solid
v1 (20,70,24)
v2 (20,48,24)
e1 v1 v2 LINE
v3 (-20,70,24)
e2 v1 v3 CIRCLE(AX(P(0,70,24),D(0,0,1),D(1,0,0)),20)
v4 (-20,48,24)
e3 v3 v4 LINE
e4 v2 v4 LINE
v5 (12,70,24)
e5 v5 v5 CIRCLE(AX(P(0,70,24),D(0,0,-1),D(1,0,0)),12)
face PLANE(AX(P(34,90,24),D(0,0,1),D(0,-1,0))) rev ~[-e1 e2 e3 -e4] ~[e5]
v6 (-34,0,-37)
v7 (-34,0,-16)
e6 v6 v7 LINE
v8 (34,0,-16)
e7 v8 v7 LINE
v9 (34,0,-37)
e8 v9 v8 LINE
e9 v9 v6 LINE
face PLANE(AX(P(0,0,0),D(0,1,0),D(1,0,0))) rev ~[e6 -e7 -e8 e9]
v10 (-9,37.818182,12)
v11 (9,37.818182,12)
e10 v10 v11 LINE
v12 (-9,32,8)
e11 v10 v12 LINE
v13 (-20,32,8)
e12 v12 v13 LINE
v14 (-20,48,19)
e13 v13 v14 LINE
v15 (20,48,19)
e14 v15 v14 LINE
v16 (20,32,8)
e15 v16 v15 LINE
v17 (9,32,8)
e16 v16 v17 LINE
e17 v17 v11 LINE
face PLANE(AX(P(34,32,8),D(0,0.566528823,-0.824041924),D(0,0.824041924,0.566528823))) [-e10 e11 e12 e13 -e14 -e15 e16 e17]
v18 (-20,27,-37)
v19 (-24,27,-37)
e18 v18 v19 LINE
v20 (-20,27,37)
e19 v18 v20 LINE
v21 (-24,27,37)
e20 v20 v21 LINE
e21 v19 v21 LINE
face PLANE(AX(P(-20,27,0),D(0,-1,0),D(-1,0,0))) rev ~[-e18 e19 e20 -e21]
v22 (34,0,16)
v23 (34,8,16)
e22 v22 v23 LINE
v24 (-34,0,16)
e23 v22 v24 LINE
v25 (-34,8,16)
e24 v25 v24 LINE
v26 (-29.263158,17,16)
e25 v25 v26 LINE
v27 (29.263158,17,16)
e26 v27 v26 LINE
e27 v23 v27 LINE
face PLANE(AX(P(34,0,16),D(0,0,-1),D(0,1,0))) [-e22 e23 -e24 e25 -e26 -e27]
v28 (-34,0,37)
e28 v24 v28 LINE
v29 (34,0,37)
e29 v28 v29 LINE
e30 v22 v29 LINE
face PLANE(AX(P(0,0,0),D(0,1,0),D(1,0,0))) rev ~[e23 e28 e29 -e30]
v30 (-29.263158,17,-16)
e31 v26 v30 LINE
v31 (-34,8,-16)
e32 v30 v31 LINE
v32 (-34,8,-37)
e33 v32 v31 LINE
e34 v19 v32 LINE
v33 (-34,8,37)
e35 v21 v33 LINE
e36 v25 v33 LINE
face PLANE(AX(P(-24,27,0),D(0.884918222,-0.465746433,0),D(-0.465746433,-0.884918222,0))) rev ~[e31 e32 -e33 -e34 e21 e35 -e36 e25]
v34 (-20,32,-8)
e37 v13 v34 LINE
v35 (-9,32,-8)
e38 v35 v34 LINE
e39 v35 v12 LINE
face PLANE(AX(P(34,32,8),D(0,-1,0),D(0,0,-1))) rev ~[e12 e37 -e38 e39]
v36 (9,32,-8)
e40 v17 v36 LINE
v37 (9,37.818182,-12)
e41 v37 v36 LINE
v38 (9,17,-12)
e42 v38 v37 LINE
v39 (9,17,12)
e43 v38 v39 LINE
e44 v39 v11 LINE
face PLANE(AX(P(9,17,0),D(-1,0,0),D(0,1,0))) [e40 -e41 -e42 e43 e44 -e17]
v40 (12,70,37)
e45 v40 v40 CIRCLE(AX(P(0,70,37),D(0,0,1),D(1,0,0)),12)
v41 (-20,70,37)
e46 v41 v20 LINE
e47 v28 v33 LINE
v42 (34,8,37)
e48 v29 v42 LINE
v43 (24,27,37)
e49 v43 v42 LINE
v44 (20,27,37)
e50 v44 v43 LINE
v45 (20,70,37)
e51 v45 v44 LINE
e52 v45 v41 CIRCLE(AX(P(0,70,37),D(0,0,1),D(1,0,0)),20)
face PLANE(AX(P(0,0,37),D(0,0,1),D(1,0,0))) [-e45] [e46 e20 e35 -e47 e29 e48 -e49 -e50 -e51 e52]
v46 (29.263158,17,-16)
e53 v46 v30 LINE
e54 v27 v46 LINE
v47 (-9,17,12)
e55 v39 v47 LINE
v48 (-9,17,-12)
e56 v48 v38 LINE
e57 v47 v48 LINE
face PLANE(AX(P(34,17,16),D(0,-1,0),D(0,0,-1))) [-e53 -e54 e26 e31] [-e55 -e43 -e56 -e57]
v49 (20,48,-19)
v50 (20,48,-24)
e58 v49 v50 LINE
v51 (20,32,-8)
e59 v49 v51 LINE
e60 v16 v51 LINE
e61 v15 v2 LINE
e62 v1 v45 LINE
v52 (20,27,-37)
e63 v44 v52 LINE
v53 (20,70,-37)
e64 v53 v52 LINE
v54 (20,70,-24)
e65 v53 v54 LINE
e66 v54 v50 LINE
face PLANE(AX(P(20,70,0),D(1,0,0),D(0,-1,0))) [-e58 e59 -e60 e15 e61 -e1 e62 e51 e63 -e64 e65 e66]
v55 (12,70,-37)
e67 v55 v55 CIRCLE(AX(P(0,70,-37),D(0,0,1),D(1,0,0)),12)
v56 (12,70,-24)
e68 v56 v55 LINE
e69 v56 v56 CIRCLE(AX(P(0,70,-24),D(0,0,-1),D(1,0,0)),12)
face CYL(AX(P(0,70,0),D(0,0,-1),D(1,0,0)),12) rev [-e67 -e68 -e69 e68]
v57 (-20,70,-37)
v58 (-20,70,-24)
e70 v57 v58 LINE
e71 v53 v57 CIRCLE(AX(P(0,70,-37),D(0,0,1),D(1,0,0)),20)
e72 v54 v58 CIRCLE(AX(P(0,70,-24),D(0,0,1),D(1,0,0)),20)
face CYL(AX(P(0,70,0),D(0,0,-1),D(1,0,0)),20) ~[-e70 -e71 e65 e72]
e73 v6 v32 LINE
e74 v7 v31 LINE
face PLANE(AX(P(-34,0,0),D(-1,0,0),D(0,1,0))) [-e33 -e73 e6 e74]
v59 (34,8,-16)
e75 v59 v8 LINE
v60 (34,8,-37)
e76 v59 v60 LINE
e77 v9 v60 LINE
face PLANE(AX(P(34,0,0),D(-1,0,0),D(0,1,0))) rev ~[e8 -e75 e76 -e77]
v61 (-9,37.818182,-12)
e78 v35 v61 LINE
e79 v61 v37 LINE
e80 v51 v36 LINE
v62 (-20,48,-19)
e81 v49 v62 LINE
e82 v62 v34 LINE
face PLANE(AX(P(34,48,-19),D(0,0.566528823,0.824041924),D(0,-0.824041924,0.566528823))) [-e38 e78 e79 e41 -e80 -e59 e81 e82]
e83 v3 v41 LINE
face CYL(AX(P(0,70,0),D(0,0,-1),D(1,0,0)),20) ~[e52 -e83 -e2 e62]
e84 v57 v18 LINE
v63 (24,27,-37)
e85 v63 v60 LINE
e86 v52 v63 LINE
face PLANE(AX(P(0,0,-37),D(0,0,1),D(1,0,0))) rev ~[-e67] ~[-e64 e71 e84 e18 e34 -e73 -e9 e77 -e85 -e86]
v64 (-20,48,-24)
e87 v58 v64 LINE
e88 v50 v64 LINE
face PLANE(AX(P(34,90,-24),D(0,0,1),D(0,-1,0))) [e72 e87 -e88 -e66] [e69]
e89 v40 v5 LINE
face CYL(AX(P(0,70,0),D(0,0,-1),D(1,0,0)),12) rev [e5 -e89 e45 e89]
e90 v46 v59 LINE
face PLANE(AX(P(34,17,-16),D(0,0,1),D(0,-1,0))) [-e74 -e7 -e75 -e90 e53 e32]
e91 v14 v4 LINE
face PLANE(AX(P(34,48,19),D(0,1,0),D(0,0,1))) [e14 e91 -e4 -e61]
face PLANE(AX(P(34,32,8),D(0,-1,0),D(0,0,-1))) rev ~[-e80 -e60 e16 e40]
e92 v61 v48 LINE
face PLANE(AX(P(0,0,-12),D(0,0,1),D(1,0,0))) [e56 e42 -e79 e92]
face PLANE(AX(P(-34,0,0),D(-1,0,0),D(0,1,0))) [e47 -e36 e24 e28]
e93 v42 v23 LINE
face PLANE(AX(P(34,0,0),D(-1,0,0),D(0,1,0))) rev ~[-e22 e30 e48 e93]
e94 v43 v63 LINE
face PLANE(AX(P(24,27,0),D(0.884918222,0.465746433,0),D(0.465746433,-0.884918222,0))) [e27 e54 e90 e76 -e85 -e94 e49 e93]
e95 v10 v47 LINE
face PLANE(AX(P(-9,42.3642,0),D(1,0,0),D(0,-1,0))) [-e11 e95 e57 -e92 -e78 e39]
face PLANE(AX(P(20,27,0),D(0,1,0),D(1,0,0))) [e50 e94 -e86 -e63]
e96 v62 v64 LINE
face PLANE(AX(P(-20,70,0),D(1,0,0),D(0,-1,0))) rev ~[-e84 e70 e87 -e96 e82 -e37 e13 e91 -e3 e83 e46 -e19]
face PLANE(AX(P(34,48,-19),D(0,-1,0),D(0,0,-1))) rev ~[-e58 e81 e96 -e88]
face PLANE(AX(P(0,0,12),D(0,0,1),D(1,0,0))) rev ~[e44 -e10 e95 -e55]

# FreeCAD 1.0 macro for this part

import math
import FreeCAD as App
import Part
import Sketcher
from FreeCAD import Vector
Q = App.Units.Quantity


def add_polygon(sketch, points):
    """Adds a closed chain of lines whose ends are joined by coincident constraints."""
    first, n = sketch.GeometryCount, len(points)
    for a, b in zip(points, points[1:] + points[:1]):
        sketch.addGeometry(Part.LineSegment(App.Vector(*a, 0), App.Vector(*b, 0)), False)
    for i in range(n):
        sketch.addConstraint(Sketcher.Constraint("Coincident", first + i, 2, first + (i + 1) % n, 1))

doc = App.newDocument("Part")
body = doc.addObject("PartDesign::Body", "Body")

# Sketch on XY plane
sketch1 = doc.addObject("Sketcher::SketchObject", "Sketch")
body.addObject(sketch1)
sketch1.AttachmentSupport = (doc.XY_Plane, [""])
sketch1.MapMode = "FlatFace"
sketch1.addGeometry([
    Part.LineSegment(Vector(20, 27, 0), Vector(20, 70, 0)),  # 0
    Part.ArcOfCircle(Part.Circle(Vector(0, 70, 0), Vector(0, 0, 1), 20), math.radians(0), math.radians(180)),  # 1
    Part.LineSegment(Vector(-20, 70, 0), Vector(-20, 27, 0)),  # 2
    Part.LineSegment(Vector(-20, 27, 0), Vector(-24, 27, 0)),  # 3
    Part.LineSegment(Vector(-24, 27, 0), Vector(-34, 8, 0)),  # 4
    Part.LineSegment(Vector(-34, 8, 0), Vector(-34, 0, 0)),  # 5
    Part.LineSegment(Vector(-34, 0, 0), Vector(34, 0, 0)),  # 6
    Part.LineSegment(Vector(34, 0, 0), Vector(34, 8, 0)),  # 7
    Part.LineSegment(Vector(34, 8, 0), Vector(24, 27, 0)),  # 8
    Part.LineSegment(Vector(24, 27, 0), Vector(20, 27, 0)),  # 9
    Part.Circle(Vector(0, 70, 0), Vector(0, 0, 1), 12),  # 10
], False)
sketch1.addConstraint([
    Sketcher.Constraint("Tangent", 0, 2, 1, 1),
    Sketcher.Constraint("Tangent", 1, 2, 2, 1),
    Sketcher.Constraint("Coincident", 2, 2, 3, 1),
    Sketcher.Constraint("Coincident", 3, 2, 4, 1),
    Sketcher.Constraint("Coincident", 4, 2, 5, 1),
    Sketcher.Constraint("Coincident", 5, 2, 6, 1),
    Sketcher.Constraint("Coincident", 6, 2, 7, 1),
    Sketcher.Constraint("Coincident", 7, 2, 8, 1),
    Sketcher.Constraint("Coincident", 8, 2, 9, 1),
    Sketcher.Constraint("Coincident", 9, 2, 0, 1),
    Sketcher.Constraint("Vertical", 0),
    Sketcher.Constraint("Vertical", 2),
    Sketcher.Constraint("Horizontal", 3),
    Sketcher.Constraint("Vertical", 5),
    Sketcher.Constraint("Horizontal", 6),
    Sketcher.Constraint("Vertical", 7),
    Sketcher.Constraint("Horizontal", 9),
    Sketcher.Constraint("Coincident", 10, 3, 1, 3),
    Sketcher.Constraint("Symmetric", 5, 2, 6, 2, -1, 1),
    Sketcher.Constraint("Symmetric", 3, 2, 8, 2, -2),
    Sketcher.Constraint("PointOnObject", 1, 3, -2),
    Sketcher.Constraint("Horizontal", 4, 2, 7, 2),
    Sketcher.Constraint("Diameter", 10, Q("24 mm")),
    Sketcher.Constraint("Radius", 1, Q("20 mm")),
    Sketcher.Constraint("DistanceX", 3, 2, 3, 1, Q("4 mm")),
    Sketcher.Constraint("DistanceY", 5, 2, 5, 1, Q("8 mm")),
    Sketcher.Constraint("DistanceY", -1, 1, 1, 3, Q("70 mm")),
    Sketcher.Constraint("DistanceX", 4, 2, -1, 1, Q("34 mm")),
    Sketcher.Constraint("DistanceY", 4, 2, 3, 2, Q("19 mm")),
])
pad1 = doc.addObject("PartDesign::Pad", "Pad")
body.addObject(pad1)
pad1.Profile = sketch1
pad1.Length = 74
pad1.Midplane = True

# Sketch on YZ plane
sketch2 = doc.addObject("Sketcher::SketchObject", "Sketch001")
body.addObject(sketch2)
sketch2.AttachmentSupport = (doc.YZ_Plane, [""])
sketch2.MapMode = "FlatFace"
sketch2.AttachmentOffset = App.Placement(Vector(0, 0, 34), App.Rotation())
add_polygon(sketch2, [(0, 16), (0, -16), (17, -16), (17, 16)])  # lines 0-3
add_polygon(sketch2, [(48, 19), (32, 8), (32, -8), (48, -19), (48, -24), (90, -24), (90, 24), (48, 24)])  # lines 4-11
sketch2.addConstraint([
    Sketcher.Constraint("Vertical", 0),
    Sketcher.Constraint("Horizontal", 1),
    Sketcher.Constraint("Vertical", 2),
    Sketcher.Constraint("Horizontal", 3),
    Sketcher.Constraint("Vertical", 5),
    Sketcher.Constraint("Vertical", 7),
    Sketcher.Constraint("Horizontal", 8),
    Sketcher.Constraint("Vertical", 9),
    Sketcher.Constraint("Horizontal", 10),
    Sketcher.Constraint("Vertical", 11),
    Sketcher.Constraint("Symmetric", 0, 2, 3, 2, -1, 1),
    Sketcher.Constraint("Symmetric", 7, 2, 10, 2, -1),
    Sketcher.Constraint("Equal", 7, 11),
    Sketcher.Constraint("Equal", 4, 6),
    Sketcher.Constraint("DistanceX", 1, 1, 1, 2, Q("17 mm")),
    Sketcher.Constraint("DistanceY", 0, 2, 0, 1, Q("32 mm")),
    Sketcher.Constraint("DistanceY", 5, 2, 5, 1, Q("16 mm")),
    Sketcher.Constraint("DistanceY", 7, 2, 7, 1, Q("5 mm")),
    Sketcher.Constraint("DistanceY", 9, 1, 9, 2, Q("48 mm")),
    Sketcher.Constraint("DistanceX", -1, 1, 4, 2, Q("32 mm")),
    Sketcher.Constraint("DistanceX", -1, 1, 6, 2, Q("48 mm")),
    Sketcher.Constraint("DistanceX", 8, 1, 8, 2, Q("42 mm")),
])
pocket1 = doc.addObject("PartDesign::Pocket", "Pocket")
body.addObject(pocket1)
pocket1.Profile = sketch2
pocket1.Length = 84

# Sketch on XY plane
sketch3 = doc.addObject("Sketcher::SketchObject", "Sketch002")
body.addObject(sketch3)
sketch3.AttachmentSupport = (doc.XY_Plane, [""])
sketch3.MapMode = "FlatFace"
add_polygon(sketch3, [(-9, 17), (9, 17), (9, 42), (-9, 42)])  # lines 0-3
sketch3.addConstraint([
    Sketcher.Constraint("Horizontal", 0),
    Sketcher.Constraint("Vertical", 1),
    Sketcher.Constraint("Horizontal", 2),
    Sketcher.Constraint("Vertical", 3),
    Sketcher.Constraint("DistanceX", 0, 1, 0, 2, Q("18 mm")),
    Sketcher.Constraint("DistanceX", -1, 1, 0, 2, Q("9 mm")),
    Sketcher.Constraint("DistanceY", -1, 1, 0, 2, Q("17 mm")),
    Sketcher.Constraint("DistanceY", 1, 1, 1, 2, Q("25.3642 mm")),
])
pocket2 = doc.addObject("PartDesign::Pocket", "Pocket001")
body.addObject(pocket2)
pocket2.Profile = sketch3
pocket2.Length = 24
pocket2.Midplane = True

doc.recompute()
